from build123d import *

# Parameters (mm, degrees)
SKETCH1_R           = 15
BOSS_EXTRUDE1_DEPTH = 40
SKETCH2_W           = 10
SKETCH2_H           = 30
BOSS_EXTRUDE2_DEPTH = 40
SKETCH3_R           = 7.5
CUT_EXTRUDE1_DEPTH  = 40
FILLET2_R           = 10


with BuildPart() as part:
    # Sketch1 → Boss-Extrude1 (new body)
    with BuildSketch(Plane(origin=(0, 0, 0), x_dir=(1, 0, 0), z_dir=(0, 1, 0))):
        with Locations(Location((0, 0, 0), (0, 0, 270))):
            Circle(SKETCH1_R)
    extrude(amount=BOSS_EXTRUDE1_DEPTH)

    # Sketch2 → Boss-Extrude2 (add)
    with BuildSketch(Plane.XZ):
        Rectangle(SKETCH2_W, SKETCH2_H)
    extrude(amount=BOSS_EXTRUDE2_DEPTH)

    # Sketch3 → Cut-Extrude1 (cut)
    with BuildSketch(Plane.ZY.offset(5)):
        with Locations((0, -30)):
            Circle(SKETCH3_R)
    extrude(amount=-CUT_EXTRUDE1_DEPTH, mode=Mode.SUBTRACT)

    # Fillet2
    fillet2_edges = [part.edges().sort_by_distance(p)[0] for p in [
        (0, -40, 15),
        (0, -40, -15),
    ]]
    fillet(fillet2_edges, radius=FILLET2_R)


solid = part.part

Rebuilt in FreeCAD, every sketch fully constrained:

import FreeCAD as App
import Part
import Sketcher
from FreeCAD import Vector


def edges_at(feature, points):
    """Names of the edges that pass closest to the given points."""
    edges = feature.Shape.Edges
    near = lambda p: min(range(len(edges)), key=lambda i: edges[i].distToShape(Part.Vertex(*p))[0])
    return sorted({f"Edge{near(p) + 1}" for p in points})

doc = App.newDocument("Part")
params = doc.addObject("Spreadsheet::Sheet", "Params")
for row, (alias, value) in enumerate([
    ("sketch1_diameter", "30 mm"),
    ("pad1_length", "40 mm"),
    ("sketch2_width", "10 mm"),
    ("sketch2_height", "30 mm"),
    ("pad2_length", "40 mm"),
    ("sketch3_diameter", "15 mm"),
    ("pocket1_length", "40 mm"),
    ("fillet_radius", "10 mm"),
], start=1):
    params.set(f"A{row}", alias)
    params.set(f"B{row}", "=" + value)
    params.setAlias(f"B{row}", alias)

body = doc.addObject("PartDesign::Body", "Body")

sketch1 = body.newObject("Sketcher::SketchObject", "Sketch")
sketch1.AttachmentSupport = (doc.getObject("XZ_Plane"), [""])
sketch1.MapMode = "FlatFace"
sketch1.addGeometry(Part.Circle(Vector(0, 0, 0), Vector(0, 0, 1), 15), False)
sketch1.addConstraint([
    Sketcher.Constraint("Coincident", 0, 3, -1, 1),
    Sketcher.Constraint("Diameter", 0, 30.0),
])
sketch1.setExpression("Constraints[1]", "Params.sketch1_diameter")
pad1 = body.newObject("PartDesign::Pad", "Pad")
pad1.Profile = sketch1
pad1.setExpression("Length", "Params.pad1_length")
pad1.Reversed = True

sketch2 = body.newObject("Sketcher::SketchObject", "Sketch001")
sketch2.AttachmentSupport = (doc.getObject("XZ_Plane"), [""])
sketch2.MapMode = "FlatFace"
sketch2.addGeometry([
    Part.LineSegment(Vector(-5, 15, 0), Vector(-5, -15, 0)),
    Part.LineSegment(Vector(-5, -15, 0), Vector(5, -15, 0)),
    Part.LineSegment(Vector(5, -15, 0), Vector(5, 15, 0)),
    Part.LineSegment(Vector(5, 15, 0), Vector(-5, 15, 0)),
], False)
sketch2.addConstraint([
    Sketcher.Constraint("Coincident", 0, 2, 1, 1),
    Sketcher.Constraint("Coincident", 1, 2, 2, 1),
    Sketcher.Constraint("Coincident", 2, 2, 3, 1),
    Sketcher.Constraint("Coincident", 3, 2, 0, 1),
    Sketcher.Constraint("Vertical", 0),
    Sketcher.Constraint("Horizontal", 1),
    Sketcher.Constraint("Vertical", 2),
    Sketcher.Constraint("Horizontal", 3),
    Sketcher.Constraint("Symmetric", 0, 2, 2, 2, -1, 1),
    Sketcher.Constraint("DistanceX", 1, 1, 1, 2, 10.0),
    Sketcher.Constraint("DistanceY", 0, 2, 0, 1, 30.0),
])
sketch2.setExpression("Constraints[9]", "Params.sketch2_width")
sketch2.setExpression("Constraints[10]", "Params.sketch2_height")
pad2 = body.newObject("PartDesign::Pad", "Pad001")
pad2.Profile = sketch2
pad2.setExpression("Length", "Params.pad2_length")

sketch3 = body.newObject("Sketcher::SketchObject", "Sketch002")
sketch3.AttachmentSupport = (doc.getObject("YZ_Plane"), [""])
sketch3.MapMode = "FlatFace"
sketch3.AttachmentOffset = App.Placement(Vector(0, 0, -5), App.Rotation())
sketch3.addGeometry(Part.Circle(Vector(-30, 0, 0), Vector(0, 0, 1), 7.5), False)
sketch3.addConstraint([
    Sketcher.Constraint("PointOnObject", 0, 3, -1),
    Sketcher.Constraint("Diameter", 0, 15.0),
    Sketcher.Constraint("DistanceX", 0, 3, -1, 1, 30.0),
])
sketch3.setExpression("Constraints[1]", "Params.sketch3_diameter")
pocket1 = body.newObject("PartDesign::Pocket", "Pocket")
pocket1.Profile = sketch3
pocket1.setExpression("Length", "Params.pocket1_length")
pocket1.Reversed = True
doc.recompute()

fillet = body.newObject("PartDesign::Fillet", "Fillet")
fillet.Base = (pocket1, edges_at(pocket1, [(0, -40, 15), (0, -40, -15)]))
fillet.setExpression("Radius", "Params.fillet_radius")

doc.recompute()
